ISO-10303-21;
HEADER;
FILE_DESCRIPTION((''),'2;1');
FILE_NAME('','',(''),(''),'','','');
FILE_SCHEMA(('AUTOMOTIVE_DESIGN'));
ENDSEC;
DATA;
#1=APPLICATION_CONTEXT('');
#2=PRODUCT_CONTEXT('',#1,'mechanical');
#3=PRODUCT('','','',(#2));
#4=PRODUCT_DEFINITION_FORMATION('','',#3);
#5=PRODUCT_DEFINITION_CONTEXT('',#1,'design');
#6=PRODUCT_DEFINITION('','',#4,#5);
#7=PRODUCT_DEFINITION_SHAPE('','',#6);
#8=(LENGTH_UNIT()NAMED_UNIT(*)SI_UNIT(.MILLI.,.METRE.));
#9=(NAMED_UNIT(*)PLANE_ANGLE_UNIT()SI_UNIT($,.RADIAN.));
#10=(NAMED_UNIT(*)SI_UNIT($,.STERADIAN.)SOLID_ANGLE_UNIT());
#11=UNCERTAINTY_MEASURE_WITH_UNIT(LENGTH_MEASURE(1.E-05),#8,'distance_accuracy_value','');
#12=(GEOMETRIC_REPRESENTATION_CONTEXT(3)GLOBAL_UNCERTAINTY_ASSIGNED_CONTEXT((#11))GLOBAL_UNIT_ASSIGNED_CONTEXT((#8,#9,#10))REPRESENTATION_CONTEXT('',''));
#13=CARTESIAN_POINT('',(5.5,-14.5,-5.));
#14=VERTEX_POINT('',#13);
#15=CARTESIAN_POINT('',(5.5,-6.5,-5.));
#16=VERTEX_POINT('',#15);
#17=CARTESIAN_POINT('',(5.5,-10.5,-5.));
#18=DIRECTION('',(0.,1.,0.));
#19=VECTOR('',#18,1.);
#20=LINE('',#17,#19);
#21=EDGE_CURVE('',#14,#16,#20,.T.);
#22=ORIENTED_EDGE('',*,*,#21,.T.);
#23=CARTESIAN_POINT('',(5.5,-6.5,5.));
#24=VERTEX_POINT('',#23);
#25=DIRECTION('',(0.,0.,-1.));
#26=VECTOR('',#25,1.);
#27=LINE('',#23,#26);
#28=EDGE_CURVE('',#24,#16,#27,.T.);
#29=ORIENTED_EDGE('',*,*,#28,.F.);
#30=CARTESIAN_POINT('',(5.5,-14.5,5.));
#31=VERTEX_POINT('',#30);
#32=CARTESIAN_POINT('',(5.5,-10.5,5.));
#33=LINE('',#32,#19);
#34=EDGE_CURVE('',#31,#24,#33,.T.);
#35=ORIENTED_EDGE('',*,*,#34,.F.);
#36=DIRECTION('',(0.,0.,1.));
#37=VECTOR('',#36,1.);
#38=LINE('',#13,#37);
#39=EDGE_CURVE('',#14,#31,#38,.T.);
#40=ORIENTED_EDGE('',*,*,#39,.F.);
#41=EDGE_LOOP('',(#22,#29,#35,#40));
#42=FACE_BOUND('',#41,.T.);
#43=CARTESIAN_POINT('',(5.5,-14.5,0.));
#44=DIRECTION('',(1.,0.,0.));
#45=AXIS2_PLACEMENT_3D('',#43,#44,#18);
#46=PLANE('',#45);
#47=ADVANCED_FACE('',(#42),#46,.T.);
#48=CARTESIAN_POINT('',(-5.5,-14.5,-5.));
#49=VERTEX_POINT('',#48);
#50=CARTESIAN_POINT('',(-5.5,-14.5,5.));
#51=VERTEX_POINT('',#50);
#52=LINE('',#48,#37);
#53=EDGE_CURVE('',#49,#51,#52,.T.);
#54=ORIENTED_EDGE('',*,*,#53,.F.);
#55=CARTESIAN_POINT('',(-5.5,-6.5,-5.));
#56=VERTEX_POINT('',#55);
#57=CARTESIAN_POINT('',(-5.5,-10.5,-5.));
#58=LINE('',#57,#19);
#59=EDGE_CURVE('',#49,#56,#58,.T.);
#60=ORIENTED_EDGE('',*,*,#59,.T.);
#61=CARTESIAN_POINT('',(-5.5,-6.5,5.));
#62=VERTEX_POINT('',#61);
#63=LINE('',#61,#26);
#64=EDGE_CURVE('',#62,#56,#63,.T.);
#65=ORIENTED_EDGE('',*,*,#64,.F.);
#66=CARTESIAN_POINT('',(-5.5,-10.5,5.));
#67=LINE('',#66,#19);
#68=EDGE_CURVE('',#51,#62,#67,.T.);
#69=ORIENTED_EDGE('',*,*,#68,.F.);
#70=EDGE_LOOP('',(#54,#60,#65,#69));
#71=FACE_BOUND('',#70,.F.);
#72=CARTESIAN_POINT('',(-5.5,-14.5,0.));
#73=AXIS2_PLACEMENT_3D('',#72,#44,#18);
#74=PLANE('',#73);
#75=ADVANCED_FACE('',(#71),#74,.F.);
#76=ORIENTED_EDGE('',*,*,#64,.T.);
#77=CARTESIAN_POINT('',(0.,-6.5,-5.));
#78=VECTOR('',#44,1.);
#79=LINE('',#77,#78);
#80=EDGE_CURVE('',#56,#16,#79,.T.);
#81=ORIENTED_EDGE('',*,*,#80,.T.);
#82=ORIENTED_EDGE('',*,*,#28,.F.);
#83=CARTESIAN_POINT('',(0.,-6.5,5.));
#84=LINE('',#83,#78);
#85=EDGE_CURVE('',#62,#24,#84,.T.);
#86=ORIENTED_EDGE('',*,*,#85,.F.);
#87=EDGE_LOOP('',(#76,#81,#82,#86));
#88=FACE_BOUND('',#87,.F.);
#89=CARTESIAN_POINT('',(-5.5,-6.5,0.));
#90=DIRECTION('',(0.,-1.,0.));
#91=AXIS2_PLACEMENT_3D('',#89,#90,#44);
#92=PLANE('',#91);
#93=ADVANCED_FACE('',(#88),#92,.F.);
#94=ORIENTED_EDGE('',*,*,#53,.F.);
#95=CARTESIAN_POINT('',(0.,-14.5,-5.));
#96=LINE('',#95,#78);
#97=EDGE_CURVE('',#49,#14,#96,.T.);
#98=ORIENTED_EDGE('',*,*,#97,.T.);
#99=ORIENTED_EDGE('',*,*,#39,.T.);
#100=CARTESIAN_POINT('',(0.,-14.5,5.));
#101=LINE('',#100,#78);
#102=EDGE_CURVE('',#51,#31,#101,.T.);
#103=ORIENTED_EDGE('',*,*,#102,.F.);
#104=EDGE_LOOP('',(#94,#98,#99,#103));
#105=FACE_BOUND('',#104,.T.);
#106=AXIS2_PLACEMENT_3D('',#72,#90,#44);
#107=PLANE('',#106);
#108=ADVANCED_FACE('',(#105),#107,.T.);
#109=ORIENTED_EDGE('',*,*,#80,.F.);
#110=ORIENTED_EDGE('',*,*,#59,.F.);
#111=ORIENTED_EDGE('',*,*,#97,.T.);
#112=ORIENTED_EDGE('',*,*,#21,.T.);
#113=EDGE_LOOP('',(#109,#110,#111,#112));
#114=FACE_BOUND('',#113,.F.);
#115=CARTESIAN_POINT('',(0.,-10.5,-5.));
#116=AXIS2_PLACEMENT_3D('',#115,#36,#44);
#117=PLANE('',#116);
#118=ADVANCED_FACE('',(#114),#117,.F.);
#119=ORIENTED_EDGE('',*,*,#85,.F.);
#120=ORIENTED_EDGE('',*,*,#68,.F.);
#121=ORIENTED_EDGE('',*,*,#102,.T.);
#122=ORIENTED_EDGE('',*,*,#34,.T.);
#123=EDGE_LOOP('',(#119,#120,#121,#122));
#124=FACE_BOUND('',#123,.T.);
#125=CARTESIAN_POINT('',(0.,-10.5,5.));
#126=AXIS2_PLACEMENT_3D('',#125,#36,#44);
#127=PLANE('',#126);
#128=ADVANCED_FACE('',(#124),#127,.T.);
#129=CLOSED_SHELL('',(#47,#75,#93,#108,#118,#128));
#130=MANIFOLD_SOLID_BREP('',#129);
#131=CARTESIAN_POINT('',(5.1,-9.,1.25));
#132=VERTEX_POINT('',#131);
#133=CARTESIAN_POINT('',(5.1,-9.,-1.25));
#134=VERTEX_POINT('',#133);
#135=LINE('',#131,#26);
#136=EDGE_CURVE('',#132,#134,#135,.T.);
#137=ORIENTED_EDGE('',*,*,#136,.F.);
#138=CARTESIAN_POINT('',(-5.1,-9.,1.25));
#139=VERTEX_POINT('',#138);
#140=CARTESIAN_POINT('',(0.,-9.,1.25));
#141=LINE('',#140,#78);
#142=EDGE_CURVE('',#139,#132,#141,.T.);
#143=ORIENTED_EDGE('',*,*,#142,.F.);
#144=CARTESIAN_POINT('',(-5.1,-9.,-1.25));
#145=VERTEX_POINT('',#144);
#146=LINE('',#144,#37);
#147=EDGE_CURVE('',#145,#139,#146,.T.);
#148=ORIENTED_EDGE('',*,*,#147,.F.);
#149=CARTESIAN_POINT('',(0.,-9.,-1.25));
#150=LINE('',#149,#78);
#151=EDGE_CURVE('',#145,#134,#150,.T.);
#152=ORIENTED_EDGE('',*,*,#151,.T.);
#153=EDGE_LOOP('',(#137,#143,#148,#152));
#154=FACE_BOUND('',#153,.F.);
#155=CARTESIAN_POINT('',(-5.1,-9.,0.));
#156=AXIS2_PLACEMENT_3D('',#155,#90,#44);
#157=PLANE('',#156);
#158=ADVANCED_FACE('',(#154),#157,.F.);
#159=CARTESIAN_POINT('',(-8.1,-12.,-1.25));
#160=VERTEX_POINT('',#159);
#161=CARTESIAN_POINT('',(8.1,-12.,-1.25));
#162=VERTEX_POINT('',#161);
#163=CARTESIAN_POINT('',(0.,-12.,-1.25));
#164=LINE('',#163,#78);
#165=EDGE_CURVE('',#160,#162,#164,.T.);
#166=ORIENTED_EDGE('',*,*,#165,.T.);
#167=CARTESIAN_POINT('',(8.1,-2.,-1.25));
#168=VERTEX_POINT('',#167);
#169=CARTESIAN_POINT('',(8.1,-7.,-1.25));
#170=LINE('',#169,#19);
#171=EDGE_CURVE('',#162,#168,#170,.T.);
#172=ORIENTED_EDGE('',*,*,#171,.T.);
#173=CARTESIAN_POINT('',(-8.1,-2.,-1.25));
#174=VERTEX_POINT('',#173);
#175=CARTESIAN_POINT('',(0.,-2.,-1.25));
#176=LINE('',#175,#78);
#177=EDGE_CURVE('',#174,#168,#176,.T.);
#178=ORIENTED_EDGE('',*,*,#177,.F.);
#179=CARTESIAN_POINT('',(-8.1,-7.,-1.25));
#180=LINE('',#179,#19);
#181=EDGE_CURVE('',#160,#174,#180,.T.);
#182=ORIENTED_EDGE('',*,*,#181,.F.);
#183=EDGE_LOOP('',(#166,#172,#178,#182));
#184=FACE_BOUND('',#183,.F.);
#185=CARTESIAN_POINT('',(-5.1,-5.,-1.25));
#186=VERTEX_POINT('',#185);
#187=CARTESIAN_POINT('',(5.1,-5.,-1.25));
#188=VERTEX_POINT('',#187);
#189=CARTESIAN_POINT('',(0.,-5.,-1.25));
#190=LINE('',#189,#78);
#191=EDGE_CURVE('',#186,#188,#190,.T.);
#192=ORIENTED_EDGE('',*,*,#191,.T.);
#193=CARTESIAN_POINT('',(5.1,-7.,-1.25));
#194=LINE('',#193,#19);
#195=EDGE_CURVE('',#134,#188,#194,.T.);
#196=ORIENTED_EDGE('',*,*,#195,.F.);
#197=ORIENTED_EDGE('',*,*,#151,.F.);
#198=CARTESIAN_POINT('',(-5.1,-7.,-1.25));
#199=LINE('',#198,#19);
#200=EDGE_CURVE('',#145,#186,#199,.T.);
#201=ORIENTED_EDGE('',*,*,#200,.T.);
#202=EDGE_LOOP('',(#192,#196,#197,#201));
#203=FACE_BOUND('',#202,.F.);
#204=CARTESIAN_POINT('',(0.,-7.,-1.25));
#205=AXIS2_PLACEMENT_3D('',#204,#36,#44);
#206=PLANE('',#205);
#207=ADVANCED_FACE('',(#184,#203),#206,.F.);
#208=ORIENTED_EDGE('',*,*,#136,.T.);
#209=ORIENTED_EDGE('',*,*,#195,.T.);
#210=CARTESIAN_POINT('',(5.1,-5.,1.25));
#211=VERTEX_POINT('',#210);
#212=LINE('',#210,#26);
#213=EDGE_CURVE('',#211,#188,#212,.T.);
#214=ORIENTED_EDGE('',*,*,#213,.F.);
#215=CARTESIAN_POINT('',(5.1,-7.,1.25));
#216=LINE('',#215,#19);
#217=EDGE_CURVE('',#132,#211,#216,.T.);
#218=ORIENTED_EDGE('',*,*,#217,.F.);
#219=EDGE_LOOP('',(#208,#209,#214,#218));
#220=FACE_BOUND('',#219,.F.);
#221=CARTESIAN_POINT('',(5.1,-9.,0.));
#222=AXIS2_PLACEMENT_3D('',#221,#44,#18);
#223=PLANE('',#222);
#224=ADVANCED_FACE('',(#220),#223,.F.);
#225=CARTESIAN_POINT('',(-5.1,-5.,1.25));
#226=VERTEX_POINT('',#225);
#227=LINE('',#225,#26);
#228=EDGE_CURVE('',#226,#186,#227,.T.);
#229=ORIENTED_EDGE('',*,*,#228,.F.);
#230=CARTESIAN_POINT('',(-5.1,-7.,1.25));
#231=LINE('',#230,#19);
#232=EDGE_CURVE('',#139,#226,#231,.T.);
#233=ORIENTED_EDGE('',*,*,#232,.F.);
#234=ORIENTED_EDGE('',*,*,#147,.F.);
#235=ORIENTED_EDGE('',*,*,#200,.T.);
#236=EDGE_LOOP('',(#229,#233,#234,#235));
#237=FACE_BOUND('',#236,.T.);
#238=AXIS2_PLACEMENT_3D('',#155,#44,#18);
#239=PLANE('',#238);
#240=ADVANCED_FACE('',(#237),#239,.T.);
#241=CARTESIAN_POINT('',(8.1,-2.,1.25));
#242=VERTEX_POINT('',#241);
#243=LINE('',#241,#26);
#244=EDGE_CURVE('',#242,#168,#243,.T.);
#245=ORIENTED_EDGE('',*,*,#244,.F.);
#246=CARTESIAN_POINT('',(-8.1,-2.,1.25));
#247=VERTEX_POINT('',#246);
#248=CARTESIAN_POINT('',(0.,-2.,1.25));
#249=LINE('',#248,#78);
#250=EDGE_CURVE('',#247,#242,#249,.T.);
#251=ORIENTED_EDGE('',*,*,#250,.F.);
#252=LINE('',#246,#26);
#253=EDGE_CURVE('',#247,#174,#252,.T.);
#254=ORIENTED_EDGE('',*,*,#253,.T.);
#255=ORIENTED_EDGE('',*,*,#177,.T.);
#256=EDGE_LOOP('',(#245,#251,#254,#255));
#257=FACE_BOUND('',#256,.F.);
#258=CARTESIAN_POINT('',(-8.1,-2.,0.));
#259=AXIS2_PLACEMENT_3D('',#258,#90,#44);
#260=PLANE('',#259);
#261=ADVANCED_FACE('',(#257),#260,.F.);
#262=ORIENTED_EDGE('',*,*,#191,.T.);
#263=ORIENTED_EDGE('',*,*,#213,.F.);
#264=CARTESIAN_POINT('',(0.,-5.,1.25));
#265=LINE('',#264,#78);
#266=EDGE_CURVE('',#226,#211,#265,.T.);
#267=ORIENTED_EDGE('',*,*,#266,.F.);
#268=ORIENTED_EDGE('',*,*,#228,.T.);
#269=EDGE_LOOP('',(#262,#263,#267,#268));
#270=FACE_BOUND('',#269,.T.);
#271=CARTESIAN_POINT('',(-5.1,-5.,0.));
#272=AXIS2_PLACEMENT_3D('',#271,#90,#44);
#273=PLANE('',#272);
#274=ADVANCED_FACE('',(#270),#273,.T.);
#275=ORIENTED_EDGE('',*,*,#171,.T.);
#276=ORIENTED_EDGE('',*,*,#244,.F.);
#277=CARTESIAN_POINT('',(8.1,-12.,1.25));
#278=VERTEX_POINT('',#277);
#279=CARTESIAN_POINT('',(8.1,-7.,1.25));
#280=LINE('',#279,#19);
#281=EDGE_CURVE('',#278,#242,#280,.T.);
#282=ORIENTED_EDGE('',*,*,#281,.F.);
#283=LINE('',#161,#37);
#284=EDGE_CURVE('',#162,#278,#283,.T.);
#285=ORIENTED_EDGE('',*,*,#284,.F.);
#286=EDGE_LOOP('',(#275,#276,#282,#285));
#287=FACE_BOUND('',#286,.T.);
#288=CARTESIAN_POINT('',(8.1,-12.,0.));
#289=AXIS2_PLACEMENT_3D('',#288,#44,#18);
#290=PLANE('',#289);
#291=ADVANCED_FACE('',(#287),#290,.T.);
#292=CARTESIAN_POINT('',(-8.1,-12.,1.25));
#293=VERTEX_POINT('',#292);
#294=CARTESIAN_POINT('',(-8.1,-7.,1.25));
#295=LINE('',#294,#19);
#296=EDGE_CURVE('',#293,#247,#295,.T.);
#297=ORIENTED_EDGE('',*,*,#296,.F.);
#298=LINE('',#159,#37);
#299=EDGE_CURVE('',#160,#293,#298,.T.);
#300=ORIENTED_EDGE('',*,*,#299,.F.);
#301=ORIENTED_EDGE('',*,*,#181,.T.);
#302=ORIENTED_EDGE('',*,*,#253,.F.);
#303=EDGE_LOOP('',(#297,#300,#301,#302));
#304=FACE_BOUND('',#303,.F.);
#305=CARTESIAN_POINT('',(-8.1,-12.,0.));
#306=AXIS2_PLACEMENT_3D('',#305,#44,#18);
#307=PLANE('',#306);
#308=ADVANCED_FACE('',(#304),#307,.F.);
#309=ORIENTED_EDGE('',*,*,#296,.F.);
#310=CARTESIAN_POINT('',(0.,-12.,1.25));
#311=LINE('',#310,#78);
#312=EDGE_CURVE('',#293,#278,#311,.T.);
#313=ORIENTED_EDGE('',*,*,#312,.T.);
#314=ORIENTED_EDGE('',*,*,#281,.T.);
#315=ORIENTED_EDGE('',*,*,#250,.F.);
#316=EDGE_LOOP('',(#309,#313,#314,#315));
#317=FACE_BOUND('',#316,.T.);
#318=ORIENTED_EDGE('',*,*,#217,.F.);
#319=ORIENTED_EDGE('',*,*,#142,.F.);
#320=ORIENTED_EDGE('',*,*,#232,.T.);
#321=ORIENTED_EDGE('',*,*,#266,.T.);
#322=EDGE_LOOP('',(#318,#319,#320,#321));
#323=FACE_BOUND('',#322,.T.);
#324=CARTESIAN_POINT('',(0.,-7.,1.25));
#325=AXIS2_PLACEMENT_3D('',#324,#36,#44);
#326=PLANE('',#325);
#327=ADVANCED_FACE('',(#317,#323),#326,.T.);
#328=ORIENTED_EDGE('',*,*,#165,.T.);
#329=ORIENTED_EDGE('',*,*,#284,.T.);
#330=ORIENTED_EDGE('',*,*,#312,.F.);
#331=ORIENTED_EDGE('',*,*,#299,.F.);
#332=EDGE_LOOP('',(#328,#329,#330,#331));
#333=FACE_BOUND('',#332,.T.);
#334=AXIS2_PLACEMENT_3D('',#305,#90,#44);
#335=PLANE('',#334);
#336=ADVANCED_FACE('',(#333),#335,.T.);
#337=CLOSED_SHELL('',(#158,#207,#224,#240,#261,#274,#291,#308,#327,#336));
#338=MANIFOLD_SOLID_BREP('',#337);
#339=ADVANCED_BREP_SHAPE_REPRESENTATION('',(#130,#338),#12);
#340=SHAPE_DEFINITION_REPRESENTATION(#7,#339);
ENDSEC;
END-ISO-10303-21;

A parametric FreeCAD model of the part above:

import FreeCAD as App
import Part
import Sketcher

V = App.Vector


def add_polygon(sketch, points):
    """Adds a closed chain of lines whose ends are joined by coincident constraints."""
    first, n = sketch.GeometryCount, len(points)
    for a, b in zip(points, points[1:] + points[:1]):
        sketch.addGeometry(Part.LineSegment(App.Vector(*a, 0), App.Vector(*b, 0)), False)
    for i in range(n):
        sketch.addConstraint(Sketcher.Constraint("Coincident", first + i, 2, first + (i + 1) % n, 1))

doc = App.newDocument("Part")
body = doc.addObject("PartDesign::Body", "Body")

# Sketch on XY plane
sketch1 = body.newObject("Sketcher::SketchObject", "Sketch")
sketch1.AttachmentSupport = (doc.getObject("XY_Plane"), [""])
sketch1.MapMode = "FlatFace"
add_polygon(sketch1, [(-8.1, -2), (-8.1, -12), (8.1, -12), (8.1, -2)])  # lines 0-3
add_polygon(sketch1, [(5.1, -9), (-5.1, -9), (-5.1, -5), (5.1, -5)])  # lines 4-7
sketch1.addConstraint(Sketcher.Constraint("Vertical", 0))
sketch1.addConstraint(Sketcher.Constraint("Horizontal", 1))
sketch1.addConstraint(Sketcher.Constraint("Vertical", 2))
sketch1.addConstraint(Sketcher.Constraint("Horizontal", 3))
sketch1.addConstraint(Sketcher.Constraint("Horizontal", 4))
sketch1.addConstraint(Sketcher.Constraint("Vertical", 5))
sketch1.addConstraint(Sketcher.Constraint("Horizontal", 6))
sketch1.addConstraint(Sketcher.Constraint("Vertical", 7))
sketch1.addConstraint(Sketcher.Constraint("DistanceY", 0, 2, 0, 1, 10.0))
sketch1.addConstraint(Sketcher.Constraint("DistanceY", 5, 1, 5, 2, 4.0))
sketch1.addConstraint(Sketcher.Constraint("DistanceX", 1, 1, 1, 2, 16.2))
sketch1.addConstraint(Sketcher.Constraint("DistanceX", 4, 2, 4, 1, 10.2))
sketch1.addConstraint(Sketcher.Constraint("DistanceY", 0, 2, -1, 1, 12.0))
sketch1.addConstraint(Sketcher.Constraint("DistanceY", 4, 2, -1, 1, 9.0))
sketch1.addConstraint(Sketcher.Constraint("DistanceX", 0, 2, 4, 2, 3.0))
sketch1.addConstraint(Sketcher.Constraint("DistanceX", 0, 2, -1, 1, 8.1))
pad1 = body.newObject("PartDesign::Pad", "Pad")
pad1.Profile = sketch1
pad1.Length = 2.5
pad1.Midplane = True
body2 = doc.addObject("PartDesign::Body", "Body001")

# Sketch on XY plane
sketch2 = body2.newObject("Sketcher::SketchObject", "Sketch001")
sketch2.AttachmentSupport = (doc.getObject("XY_Plane001"), [""])
sketch2.MapMode = "FlatFace"
add_polygon(sketch2, [(-6, -6), (-6, -14), (6, -14), (6, -6)])  # lines 0-3
sketch2.addConstraint(Sketcher.Constraint("Vertical", 0))
sketch2.addConstraint(Sketcher.Constraint("Horizontal", 1))
sketch2.addConstraint(Sketcher.Constraint("Vertical", 2))
sketch2.addConstraint(Sketcher.Constraint("Horizontal", 3))
sketch2.addConstraint(Sketcher.Constraint("DistanceX", 1, 1, 1, 2, 11.0))
sketch2.addConstraint(Sketcher.Constraint("DistanceY", 0, 2, 0, 1, 8.0))
sketch2.addConstraint(Sketcher.Constraint("DistanceX", 0, 2, -1, 1, 5.5))
sketch2.addConstraint(Sketcher.Constraint("DistanceY", 0, 2, -1, 1, 14.5))
pad2 = body2.newObject("PartDesign::Pad", "Pad001")
pad2.Profile = sketch2
pad2.Length = 10
pad2.Midplane = True

doc.recompute()
